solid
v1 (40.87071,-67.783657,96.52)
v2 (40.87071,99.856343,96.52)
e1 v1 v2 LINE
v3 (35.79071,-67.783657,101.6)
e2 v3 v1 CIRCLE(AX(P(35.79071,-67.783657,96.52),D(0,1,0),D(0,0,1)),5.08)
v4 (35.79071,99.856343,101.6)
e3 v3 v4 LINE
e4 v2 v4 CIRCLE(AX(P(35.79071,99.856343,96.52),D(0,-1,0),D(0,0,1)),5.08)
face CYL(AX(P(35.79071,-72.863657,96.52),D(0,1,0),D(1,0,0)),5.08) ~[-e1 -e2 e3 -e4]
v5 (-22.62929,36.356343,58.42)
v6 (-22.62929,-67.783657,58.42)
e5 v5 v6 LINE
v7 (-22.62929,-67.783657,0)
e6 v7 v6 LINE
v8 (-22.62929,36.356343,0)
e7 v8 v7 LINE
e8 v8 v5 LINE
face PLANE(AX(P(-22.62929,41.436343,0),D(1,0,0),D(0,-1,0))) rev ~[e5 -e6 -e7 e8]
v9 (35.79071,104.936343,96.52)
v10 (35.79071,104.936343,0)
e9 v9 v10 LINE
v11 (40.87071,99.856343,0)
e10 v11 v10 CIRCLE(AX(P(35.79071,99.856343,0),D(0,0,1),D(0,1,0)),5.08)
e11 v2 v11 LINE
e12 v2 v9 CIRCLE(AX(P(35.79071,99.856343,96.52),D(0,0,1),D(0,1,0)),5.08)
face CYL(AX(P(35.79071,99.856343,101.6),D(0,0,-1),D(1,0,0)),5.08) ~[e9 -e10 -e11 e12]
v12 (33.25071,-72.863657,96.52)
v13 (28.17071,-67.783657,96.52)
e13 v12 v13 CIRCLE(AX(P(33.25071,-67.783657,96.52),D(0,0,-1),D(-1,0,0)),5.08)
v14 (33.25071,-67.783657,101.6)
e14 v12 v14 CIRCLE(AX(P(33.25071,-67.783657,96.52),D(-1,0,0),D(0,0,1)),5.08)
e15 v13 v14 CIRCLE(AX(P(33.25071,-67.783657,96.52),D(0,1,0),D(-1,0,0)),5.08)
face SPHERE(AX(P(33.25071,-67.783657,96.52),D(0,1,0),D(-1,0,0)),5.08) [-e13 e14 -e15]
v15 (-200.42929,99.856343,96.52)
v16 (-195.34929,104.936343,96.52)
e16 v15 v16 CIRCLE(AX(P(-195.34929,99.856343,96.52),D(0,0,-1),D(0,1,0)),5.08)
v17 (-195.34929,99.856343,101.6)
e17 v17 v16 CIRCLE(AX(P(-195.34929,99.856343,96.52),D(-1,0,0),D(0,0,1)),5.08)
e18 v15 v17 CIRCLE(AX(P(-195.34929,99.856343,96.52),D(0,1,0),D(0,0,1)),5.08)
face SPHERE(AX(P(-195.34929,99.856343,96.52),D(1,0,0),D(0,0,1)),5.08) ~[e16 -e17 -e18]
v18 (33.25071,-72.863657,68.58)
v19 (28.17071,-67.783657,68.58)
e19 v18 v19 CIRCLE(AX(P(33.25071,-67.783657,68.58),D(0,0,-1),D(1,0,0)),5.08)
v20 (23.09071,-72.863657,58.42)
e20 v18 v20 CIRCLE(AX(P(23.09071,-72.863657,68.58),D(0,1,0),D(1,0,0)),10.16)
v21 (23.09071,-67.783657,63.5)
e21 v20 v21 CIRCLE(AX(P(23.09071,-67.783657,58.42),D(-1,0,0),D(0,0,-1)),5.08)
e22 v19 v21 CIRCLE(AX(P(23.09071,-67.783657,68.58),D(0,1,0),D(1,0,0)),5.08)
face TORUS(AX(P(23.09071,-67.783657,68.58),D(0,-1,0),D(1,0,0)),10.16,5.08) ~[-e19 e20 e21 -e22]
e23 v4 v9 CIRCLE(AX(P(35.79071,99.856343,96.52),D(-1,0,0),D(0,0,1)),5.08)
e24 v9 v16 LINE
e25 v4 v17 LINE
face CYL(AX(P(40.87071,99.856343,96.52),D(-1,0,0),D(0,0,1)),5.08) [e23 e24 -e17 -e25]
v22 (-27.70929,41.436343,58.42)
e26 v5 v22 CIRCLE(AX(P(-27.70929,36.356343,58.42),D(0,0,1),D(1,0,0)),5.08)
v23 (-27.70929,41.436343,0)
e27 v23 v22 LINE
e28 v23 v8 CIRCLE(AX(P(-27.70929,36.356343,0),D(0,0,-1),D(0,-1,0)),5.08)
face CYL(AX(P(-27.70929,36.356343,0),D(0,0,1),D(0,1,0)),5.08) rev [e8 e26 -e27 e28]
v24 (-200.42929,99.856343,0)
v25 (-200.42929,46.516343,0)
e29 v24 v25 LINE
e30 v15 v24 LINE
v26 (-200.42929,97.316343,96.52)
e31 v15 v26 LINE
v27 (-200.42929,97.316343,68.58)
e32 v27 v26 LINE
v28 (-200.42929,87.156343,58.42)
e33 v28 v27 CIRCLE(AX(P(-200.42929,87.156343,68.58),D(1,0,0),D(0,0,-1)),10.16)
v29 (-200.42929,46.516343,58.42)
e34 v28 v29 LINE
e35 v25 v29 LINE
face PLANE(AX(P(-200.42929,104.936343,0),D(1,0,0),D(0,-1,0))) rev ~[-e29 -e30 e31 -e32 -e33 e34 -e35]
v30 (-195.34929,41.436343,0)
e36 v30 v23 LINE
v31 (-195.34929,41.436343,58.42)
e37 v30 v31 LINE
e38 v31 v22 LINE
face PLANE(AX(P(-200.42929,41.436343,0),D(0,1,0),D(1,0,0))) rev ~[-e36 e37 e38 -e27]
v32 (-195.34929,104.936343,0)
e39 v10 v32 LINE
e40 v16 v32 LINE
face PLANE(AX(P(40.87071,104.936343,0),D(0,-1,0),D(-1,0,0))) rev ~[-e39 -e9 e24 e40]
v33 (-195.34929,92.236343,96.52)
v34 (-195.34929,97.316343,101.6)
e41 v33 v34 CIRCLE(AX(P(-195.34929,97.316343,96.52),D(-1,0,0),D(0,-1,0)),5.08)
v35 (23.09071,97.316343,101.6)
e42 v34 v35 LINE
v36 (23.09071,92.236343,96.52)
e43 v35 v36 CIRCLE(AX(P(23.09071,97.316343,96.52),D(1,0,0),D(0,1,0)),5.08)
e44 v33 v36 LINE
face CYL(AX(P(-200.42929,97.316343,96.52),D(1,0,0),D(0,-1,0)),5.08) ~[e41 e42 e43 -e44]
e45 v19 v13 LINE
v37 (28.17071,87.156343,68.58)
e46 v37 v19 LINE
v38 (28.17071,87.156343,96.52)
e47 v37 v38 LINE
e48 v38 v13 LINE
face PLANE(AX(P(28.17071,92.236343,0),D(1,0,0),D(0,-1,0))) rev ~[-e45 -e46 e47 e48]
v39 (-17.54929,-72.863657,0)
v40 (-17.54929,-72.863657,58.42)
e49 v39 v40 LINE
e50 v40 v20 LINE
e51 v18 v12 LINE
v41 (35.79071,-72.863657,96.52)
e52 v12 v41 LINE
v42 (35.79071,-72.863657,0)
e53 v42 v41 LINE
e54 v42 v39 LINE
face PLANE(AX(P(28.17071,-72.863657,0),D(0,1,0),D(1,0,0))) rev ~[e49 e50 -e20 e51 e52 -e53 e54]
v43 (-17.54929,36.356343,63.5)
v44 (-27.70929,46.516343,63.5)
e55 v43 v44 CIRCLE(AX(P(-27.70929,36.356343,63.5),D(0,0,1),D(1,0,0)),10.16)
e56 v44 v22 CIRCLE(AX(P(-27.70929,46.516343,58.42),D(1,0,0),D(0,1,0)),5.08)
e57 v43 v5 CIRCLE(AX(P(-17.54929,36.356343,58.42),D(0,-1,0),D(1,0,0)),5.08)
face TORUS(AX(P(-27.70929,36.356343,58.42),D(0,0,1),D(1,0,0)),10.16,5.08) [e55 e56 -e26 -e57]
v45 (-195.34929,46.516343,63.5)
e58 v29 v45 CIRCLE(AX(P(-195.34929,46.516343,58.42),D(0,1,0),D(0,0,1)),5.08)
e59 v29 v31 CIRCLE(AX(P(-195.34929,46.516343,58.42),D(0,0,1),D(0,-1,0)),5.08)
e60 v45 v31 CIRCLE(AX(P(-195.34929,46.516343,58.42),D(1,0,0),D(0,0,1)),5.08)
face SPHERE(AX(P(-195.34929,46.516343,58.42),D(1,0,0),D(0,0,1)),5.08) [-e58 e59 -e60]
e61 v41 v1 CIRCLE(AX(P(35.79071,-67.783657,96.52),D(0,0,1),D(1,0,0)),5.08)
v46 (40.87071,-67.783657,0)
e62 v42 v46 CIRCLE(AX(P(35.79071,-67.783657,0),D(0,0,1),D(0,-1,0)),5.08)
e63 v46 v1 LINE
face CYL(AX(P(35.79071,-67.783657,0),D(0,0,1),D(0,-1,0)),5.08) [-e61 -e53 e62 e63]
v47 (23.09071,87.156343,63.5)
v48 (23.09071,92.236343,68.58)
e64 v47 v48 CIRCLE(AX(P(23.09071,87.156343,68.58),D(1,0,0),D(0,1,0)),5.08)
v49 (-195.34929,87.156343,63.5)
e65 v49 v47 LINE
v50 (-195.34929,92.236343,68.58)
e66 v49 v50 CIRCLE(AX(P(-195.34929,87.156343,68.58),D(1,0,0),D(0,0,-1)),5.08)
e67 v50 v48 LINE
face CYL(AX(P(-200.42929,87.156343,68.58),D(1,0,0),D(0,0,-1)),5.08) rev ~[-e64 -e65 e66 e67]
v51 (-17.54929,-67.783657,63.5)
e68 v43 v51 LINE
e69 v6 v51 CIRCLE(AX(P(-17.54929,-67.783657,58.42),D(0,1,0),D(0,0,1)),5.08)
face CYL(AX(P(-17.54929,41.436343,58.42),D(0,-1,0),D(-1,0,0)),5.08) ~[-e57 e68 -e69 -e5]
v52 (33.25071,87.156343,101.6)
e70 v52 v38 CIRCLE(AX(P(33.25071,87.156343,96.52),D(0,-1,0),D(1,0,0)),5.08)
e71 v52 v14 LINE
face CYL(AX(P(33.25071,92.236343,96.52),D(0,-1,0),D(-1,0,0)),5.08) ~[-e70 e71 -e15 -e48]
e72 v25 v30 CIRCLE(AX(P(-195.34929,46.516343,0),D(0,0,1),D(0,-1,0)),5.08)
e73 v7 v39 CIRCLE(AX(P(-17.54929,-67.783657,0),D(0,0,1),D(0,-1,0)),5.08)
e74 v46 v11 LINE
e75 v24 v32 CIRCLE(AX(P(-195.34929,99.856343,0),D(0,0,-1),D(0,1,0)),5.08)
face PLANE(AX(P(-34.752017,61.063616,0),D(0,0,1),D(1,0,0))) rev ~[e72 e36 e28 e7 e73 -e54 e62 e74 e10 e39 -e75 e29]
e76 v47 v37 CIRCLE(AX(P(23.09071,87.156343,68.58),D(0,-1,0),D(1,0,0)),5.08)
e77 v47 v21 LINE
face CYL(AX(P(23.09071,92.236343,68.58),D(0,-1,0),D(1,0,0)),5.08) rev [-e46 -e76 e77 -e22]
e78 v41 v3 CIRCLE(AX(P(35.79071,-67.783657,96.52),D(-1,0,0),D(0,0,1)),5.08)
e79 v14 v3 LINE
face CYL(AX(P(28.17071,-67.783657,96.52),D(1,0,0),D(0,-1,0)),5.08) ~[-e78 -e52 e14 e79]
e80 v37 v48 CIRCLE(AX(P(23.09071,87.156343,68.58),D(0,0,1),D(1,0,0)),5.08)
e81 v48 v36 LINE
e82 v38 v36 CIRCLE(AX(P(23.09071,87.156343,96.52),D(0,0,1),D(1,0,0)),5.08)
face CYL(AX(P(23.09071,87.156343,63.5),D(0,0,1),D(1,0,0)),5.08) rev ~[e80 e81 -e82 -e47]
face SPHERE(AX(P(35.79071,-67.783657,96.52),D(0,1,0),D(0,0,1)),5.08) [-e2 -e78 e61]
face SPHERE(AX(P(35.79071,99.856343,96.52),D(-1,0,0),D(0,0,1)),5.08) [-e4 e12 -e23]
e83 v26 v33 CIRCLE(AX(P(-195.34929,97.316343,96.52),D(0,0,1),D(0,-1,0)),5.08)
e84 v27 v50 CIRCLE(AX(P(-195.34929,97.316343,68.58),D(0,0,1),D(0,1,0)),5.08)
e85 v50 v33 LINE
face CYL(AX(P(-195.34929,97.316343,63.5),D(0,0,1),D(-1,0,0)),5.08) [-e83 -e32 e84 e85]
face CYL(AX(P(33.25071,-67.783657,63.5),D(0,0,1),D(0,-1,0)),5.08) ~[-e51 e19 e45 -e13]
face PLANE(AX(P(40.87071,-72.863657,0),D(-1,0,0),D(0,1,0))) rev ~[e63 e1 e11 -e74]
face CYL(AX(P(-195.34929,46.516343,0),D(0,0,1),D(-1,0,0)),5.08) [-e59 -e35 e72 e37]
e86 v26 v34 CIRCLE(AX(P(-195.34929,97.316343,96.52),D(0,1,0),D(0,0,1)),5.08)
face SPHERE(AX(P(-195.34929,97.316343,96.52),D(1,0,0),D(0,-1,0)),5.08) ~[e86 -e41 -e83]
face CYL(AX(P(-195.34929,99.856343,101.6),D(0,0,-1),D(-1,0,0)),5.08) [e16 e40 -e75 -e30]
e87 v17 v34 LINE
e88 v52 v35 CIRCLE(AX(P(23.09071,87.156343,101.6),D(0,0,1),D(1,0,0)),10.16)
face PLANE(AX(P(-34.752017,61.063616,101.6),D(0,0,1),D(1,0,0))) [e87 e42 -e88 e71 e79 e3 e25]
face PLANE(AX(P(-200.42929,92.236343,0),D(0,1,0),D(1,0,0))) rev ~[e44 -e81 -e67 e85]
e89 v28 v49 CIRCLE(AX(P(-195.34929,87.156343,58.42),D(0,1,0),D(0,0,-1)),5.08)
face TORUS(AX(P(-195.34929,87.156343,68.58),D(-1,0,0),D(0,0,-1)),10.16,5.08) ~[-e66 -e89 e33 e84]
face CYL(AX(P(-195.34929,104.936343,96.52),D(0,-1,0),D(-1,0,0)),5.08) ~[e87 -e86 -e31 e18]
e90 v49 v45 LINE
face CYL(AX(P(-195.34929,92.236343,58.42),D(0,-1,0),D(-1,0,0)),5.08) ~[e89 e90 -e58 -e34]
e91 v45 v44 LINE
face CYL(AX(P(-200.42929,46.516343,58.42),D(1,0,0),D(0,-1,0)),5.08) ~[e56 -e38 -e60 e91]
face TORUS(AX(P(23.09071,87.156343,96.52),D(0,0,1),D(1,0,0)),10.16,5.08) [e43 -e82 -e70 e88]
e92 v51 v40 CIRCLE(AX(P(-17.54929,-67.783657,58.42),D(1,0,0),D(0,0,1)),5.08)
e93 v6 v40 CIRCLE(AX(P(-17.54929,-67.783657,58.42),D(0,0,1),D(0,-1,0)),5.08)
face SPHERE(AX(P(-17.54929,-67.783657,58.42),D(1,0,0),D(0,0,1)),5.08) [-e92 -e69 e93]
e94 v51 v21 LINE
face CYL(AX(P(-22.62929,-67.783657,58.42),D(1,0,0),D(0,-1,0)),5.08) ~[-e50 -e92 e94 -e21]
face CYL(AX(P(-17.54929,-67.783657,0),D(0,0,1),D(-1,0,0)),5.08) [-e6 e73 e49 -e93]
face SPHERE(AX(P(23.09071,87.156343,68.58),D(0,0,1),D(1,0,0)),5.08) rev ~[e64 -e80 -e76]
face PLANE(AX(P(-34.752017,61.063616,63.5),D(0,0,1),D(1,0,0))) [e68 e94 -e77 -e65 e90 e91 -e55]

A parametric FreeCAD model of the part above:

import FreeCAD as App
import Part
import Sketcher
from FreeCAD import Vector
Q = App.Units.Quantity


def edges_at(feature, points):
    """Names of the edges that pass closest to the given points."""
    edges = feature.Shape.Edges
    near = lambda p: min(range(len(edges)), key=lambda i: edges[i].distToShape(Part.Vertex(*p))[0])
    return sorted({f"Edge{near(p) + 1}" for p in points})

doc = App.newDocument("Part")
params = doc.addObject("Spreadsheet::Sheet", "Params")
for row, (alias, value) in enumerate([
    ("sketch1_width", "9 in"),
    ("sketch1_height", "7 in"),
    ("sketch1_width2", "0.5 in"),
    ("pad1_length", "4 in"),
    ("sketch2_width", "7 in"),
    ("sketch2_width2", "2.5 in"),
    ("pad2_length", "2.5 in"),
    ("fillet_radius", "0.2 in"),
], start=1):
    params.set(f"A{row}", alias)
    params.set(f"B{row}", "=" + value)
    params.setAlias(f"B{row}", alias)

body = doc.addObject("PartDesign::Body", "Body")

# Sketch on XY plane
sketch1 = body.newObject("Sketcher::SketchObject", "Sketch")
sketch1.AttachmentSupport = (doc.getObject("XY_Plane"), [""])
sketch1.MapMode = "FlatFace"
sketch1.addGeometry(Part.LineSegment(Vector(-200.42929, 104.936343, 0), Vector(-200.42929, 92.236343, 0)), False)
sketch1.addGeometry(Part.LineSegment(Vector(-200.42929, 92.236343, 0), Vector(28.17071, 92.236343, 0)), False)
sketch1.addGeometry(Part.LineSegment(Vector(28.17071, 92.236343, 0), Vector(28.17071, -72.863657, 0)), False)
sketch1.addGeometry(Part.LineSegment(Vector(28.17071, -72.863657, 0), Vector(40.87071, -72.863657, 0)), False)
sketch1.addGeometry(Part.LineSegment(Vector(40.87071, -72.863657, 0), Vector(40.87071, 104.936343, 0)), False)
sketch1.addGeometry(Part.LineSegment(Vector(40.87071, 104.936343, 0), Vector(-200.42929, 104.936343, 0)), False)
sketch1.addConstraint(Sketcher.Constraint("Coincident", 0, 2, 1, 1))
sketch1.addConstraint(Sketcher.Constraint("Coincident", 1, 2, 2, 1))
sketch1.addConstraint(Sketcher.Constraint("Coincident", 2, 2, 3, 1))
sketch1.addConstraint(Sketcher.Constraint("Coincident", 3, 2, 4, 1))
sketch1.addConstraint(Sketcher.Constraint("Coincident", 4, 2, 5, 1))
sketch1.addConstraint(Sketcher.Constraint("Coincident", 5, 2, 0, 1))
sketch1.addConstraint(Sketcher.Constraint("Vertical", 0))
sketch1.addConstraint(Sketcher.Constraint("Horizontal", 1))
sketch1.addConstraint(Sketcher.Constraint("Vertical", 2))
sketch1.addConstraint(Sketcher.Constraint("Horizontal", 3))
sketch1.addConstraint(Sketcher.Constraint("Vertical", 4))
sketch1.addConstraint(Sketcher.Constraint("Horizontal", 5))
sketch1.addConstraint(Sketcher.Constraint("Equal", 3, 0))
sketch1.addConstraint(Sketcher.Constraint("DistanceX", 1, 1, 1, 2, Q("9 in")))
sketch1.addConstraint(Sketcher.Constraint("DistanceY", 4, 1, 4, 2, Q("7 in")))
sketch1.addConstraint(Sketcher.Constraint("DistanceX", 3, 1, 3, 2, Q("0.5 in")))
sketch1.addConstraint(Sketcher.Constraint("DistanceX", 0, 2, -1, 1, 200.42929))
sketch1.addConstraint(Sketcher.Constraint("DistanceY", -1, 1, 0, 2, 92.236343))
sketch1.setExpression("Constraints[13]", "Params.sketch1_width")
sketch1.setExpression("Constraints[14]", "Params.sketch1_height")
sketch1.setExpression("Constraints[15]", "Params.sketch1_width2")
pad1 = body.newObject("PartDesign::Pad", "Pad")
pad1.Profile = sketch1
pad1.setExpression("Length", "Params.pad1_length")

# Sketch on XY plane
sketch2 = body.newObject("Sketcher::SketchObject", "Sketch001")
sketch2.AttachmentSupport = (doc.getObject("XY_Plane"), [""])
sketch2.MapMode = "FlatFace"
sketch2.addGeometry(Part.LineSegment(Vector(-200.42929, 104.936343, 0), Vector(-200.42929, 41.436343, 0)), False)
sketch2.addGeometry(Part.LineSegment(Vector(-200.42929, 41.436343, 0), Vector(-22.62929, 41.436343, 0)), False)
sketch2.addGeometry(Part.LineSegment(Vector(-22.62929, 41.436343, 0), Vector(-22.62929, -72.863657, 0)), False)
sketch2.addGeometry(Part.LineSegment(Vector(-22.62929, -72.863657, 0), Vector(40.87071, -72.863657, 0)), False)
sketch2.addGeometry(Part.LineSegment(Vector(40.87071, -72.863657, 0), Vector(40.87071, 104.936343, 0)), False)
sketch2.addGeometry(Part.LineSegment(Vector(40.87071, 104.936343, 0), Vector(-200.42929, 104.936343, 0)), False)
sketch2.addConstraint(Sketcher.Constraint("Coincident", 0, 2, 1, 1))
sketch2.addConstraint(Sketcher.Constraint("Coincident", 1, 2, 2, 1))
sketch2.addConstraint(Sketcher.Constraint("Coincident", 2, 2, 3, 1))
sketch2.addConstraint(Sketcher.Constraint("Coincident", 3, 2, 4, 1))
sketch2.addConstraint(Sketcher.Constraint("Coincident", 4, 2, 5, 1))
sketch2.addConstraint(Sketcher.Constraint("Coincident", 5, 2, 0, 1))
sketch2.addConstraint(Sketcher.Constraint("Vertical", 0))
sketch2.addConstraint(Sketcher.Constraint("Horizontal", 1))
sketch2.addConstraint(Sketcher.Constraint("Vertical", 2))
sketch2.addConstraint(Sketcher.Constraint("Horizontal", 3))
sketch2.addConstraint(Sketcher.Constraint("Vertical", 4))
sketch2.addConstraint(Sketcher.Constraint("Horizontal", 5))
sketch2.addConstraint(Sketcher.Constraint("Equal", 3, 0))
sketch2.addConstraint(Sketcher.Constraint("Equal", 1, 4))
sketch2.addConstraint(Sketcher.Constraint("DistanceX", 1, 1, 1, 2, Q("7 in")))
sketch2.addConstraint(Sketcher.Constraint("DistanceX", 3, 1, 3, 2, Q("2.5 in")))
sketch2.addConstraint(Sketcher.Constraint("DistanceX", 0, 2, -1, 1, 200.42929))
sketch2.addConstraint(Sketcher.Constraint("DistanceY", -1, 1, 0, 2, 41.436343))
sketch2.setExpression("Constraints[14]", "Params.sketch2_width")
sketch2.setExpression("Constraints[15]", "Params.sketch2_width2")
pad2 = body.newObject("PartDesign::Pad", "Pad001")
pad2.Profile = sketch2
pad2.setExpression("Length", "Params.pad2_length")
doc.recompute()

fillet = body.newObject("PartDesign::Fillet", "Fillet")
fillet.Base = (pad2, edges_at(pad2, [
    (28.171, 9.686, 101.6),
    (-86.129, 92.236, 101.6),
    (28.171, 92.236, 82.55),
    (28.171, 9.686, 63.5),
    (28.171, -72.864, 82.55),
    (-200.429, 92.236, 82.55),
    (-86.129, 92.236, 63.5),
    (2.771, -72.864, 63.5),
    (-22.629, -15.714, 63.5),
    (-111.529, 41.436, 63.5),
    (-200.429, 66.836, 63.5),
    (-22.629, 41.436, 31.75),
    (-200.429, 41.436, 31.75),
    (-79.779, 104.936, 101.6),
    (40.871, 16.036, 101.6),
    (34.521, -72.864, 101.6),
    (-200.429, 98.586, 101.6),
    (-22.629, -72.864, 31.75),
    (-200.429, 104.936, 50.8),
    (40.871, -72.864, 50.8),
    (40.871, 104.936, 50.8),
]))
fillet.setExpression("Radius", "Params.fillet_radius")

doc.recompute()
